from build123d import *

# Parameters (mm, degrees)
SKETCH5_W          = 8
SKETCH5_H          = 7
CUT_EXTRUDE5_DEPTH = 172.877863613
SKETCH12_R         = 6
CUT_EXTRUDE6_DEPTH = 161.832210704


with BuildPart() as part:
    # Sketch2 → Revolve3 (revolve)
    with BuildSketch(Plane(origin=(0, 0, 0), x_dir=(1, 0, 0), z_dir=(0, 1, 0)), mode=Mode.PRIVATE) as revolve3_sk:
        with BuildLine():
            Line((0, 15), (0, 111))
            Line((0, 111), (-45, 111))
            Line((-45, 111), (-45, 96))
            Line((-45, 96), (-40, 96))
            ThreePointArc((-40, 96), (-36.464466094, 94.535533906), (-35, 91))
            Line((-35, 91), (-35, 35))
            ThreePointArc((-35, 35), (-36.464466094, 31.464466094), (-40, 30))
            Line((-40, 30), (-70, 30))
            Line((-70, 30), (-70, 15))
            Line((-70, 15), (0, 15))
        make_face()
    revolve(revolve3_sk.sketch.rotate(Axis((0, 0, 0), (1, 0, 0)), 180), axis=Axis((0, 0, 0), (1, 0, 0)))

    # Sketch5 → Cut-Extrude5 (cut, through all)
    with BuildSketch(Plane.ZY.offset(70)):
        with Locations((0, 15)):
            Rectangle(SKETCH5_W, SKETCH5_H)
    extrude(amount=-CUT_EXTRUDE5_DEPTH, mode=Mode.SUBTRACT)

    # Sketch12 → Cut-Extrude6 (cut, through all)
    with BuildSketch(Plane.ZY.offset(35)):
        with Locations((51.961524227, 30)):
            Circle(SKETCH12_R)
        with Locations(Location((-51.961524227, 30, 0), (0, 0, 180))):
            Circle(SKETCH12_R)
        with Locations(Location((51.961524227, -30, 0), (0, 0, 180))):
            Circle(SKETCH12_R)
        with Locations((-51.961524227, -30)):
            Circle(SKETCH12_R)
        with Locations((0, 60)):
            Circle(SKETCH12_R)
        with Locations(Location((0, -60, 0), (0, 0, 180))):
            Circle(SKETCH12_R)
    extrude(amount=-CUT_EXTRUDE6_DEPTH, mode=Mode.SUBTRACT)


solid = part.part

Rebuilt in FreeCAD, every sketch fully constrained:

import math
import FreeCAD as App
import Part
import Sketcher

V = App.Vector
Q = App.Units.Quantity

doc = App.newDocument("Part")
body = doc.addObject("PartDesign::Body", "Body")

# Sketch on XZ plane
sketch1 = doc.addObject("Sketcher::SketchObject", "Sketch")
body.addObject(sketch1)
sketch1.AttachmentSupport = (doc.XZ_Plane, [""])
sketch1.MapMode = "FlatFace"
sketch1.addGeometry(Part.LineSegment(V(0, -15, 0), V(0, -111, 0)), False)
sketch1.addGeometry(Part.LineSegment(V(0, -111, 0), V(-45, -111, 0)), False)
sketch1.addGeometry(Part.LineSegment(V(-45, -111, 0), V(-45, -96, 0)), False)
sketch1.addGeometry(Part.LineSegment(V(-45, -96, 0), V(-40, -96, 0)), False)
sketch1.addGeometry(Part.ArcOfCircle(Part.Circle(V(-40, -91, 0), V(0, 0, 1), 5), math.radians(-90), math.radians(0)), False)
sketch1.addGeometry(Part.LineSegment(V(-35, -91, 0), V(-35, -35, 0)), False)
sketch1.addGeometry(Part.ArcOfCircle(Part.Circle(V(-40, -35, 0), V(0, 0, 1), 5), math.radians(0), math.radians(90)), False)
sketch1.addGeometry(Part.LineSegment(V(-40, -30, 0), V(-70, -30, 0)), False)
sketch1.addGeometry(Part.LineSegment(V(-70, -30, 0), V(-70, -15, 0)), False)
sketch1.addGeometry(Part.LineSegment(V(-70, -15, 0), V(0, -15, 0)), False)
sketch1.addConstraint(Sketcher.Constraint("Coincident", 0, 2, 1, 1))
sketch1.addConstraint(Sketcher.Constraint("Coincident", 1, 2, 2, 1))
sketch1.addConstraint(Sketcher.Constraint("Coincident", 2, 2, 3, 1))
sketch1.addConstraint(Sketcher.Constraint("Tangent", 3, 2, 4, 1))
sketch1.addConstraint(Sketcher.Constraint("Tangent", 4, 2, 5, 1))
sketch1.addConstraint(Sketcher.Constraint("Tangent", 5, 2, 6, 1))
sketch1.addConstraint(Sketcher.Constraint("Tangent", 6, 2, 7, 1))
sketch1.addConstraint(Sketcher.Constraint("Coincident", 7, 2, 8, 1))
sketch1.addConstraint(Sketcher.Constraint("Coincident", 8, 2, 9, 1))
sketch1.addConstraint(Sketcher.Constraint("Coincident", 9, 2, 0, 1))
sketch1.addConstraint(Sketcher.Constraint("Vertical", 0))
sketch1.addConstraint(Sketcher.Constraint("Horizontal", 1))
sketch1.addConstraint(Sketcher.Constraint("Vertical", 2))
sketch1.addConstraint(Sketcher.Constraint("Horizontal", 3))
sketch1.addConstraint(Sketcher.Constraint("Vertical", 5))
sketch1.addConstraint(Sketcher.Constraint("Horizontal", 7))
sketch1.addConstraint(Sketcher.Constraint("Vertical", 8))
sketch1.addConstraint(Sketcher.Constraint("Horizontal", 9))
sketch1.addConstraint(Sketcher.Constraint("Equal", 4, 6))
sketch1.addConstraint(Sketcher.Constraint("PointOnObject", 0, 2, -2))
sketch1.addConstraint(Sketcher.Constraint("Equal", 2, 8))
sketch1.addConstraint(Sketcher.Constraint("Radius", 4, Q("5 mm")))
sketch1.addConstraint(Sketcher.Constraint("DistanceX", 1, 2, 1, 1, Q("45 mm")))
sketch1.addConstraint(Sketcher.Constraint("DistanceX", 3, 1, 3, 2, Q("5 mm")))
sketch1.addConstraint(Sketcher.Constraint("DistanceX", 7, 2, 7, 1, Q("30 mm")))
sketch1.addConstraint(Sketcher.Constraint("DistanceY", 0, 2, 0, 1, Q("96 mm")))
sketch1.addConstraint(Sketcher.Constraint("DistanceY", 2, 1, 2, 2, Q("15 mm")))
sketch1.addConstraint(Sketcher.Constraint("DistanceY", 4, 3, -1, 1, Q("91 mm")))
revolution = doc.addObject("PartDesign::Revolution", "Revolution")
body.addObject(revolution)
revolution.Profile = sketch1
revolution.ReferenceAxis = (sketch1, ["H_Axis"])
revolution.Angle = 360

# Sketch on YZ plane
sketch2 = doc.addObject("Sketcher::SketchObject", "Sketch001")
body.addObject(sketch2)
sketch2.AttachmentSupport = (doc.YZ_Plane, [""])
sketch2.MapMode = "FlatFace"
sketch2.AttachmentOffset = App.Placement(V(0, 0, -70), App.Rotation())
sketch2.addGeometry(Part.LineSegment(V(18, -4, 0), V(12, -4, 0)), False)
sketch2.addGeometry(Part.LineSegment(V(12, -4, 0), V(12, 4, 0)), False)
sketch2.addGeometry(Part.LineSegment(V(12, 4, 0), V(18, 4, 0)), False)
sketch2.addGeometry(Part.LineSegment(V(18, 4, 0), V(18, -4, 0)), False)
sketch2.addConstraint(Sketcher.Constraint("Coincident", 0, 2, 1, 1))
sketch2.addConstraint(Sketcher.Constraint("Coincident", 1, 2, 2, 1))
sketch2.addConstraint(Sketcher.Constraint("Coincident", 2, 2, 3, 1))
sketch2.addConstraint(Sketcher.Constraint("Coincident", 3, 2, 0, 1))
sketch2.addConstraint(Sketcher.Constraint("Horizontal", 0))
sketch2.addConstraint(Sketcher.Constraint("Vertical", 1))
sketch2.addConstraint(Sketcher.Constraint("Horizontal", 2))
sketch2.addConstraint(Sketcher.Constraint("Vertical", 3))
sketch2.addConstraint(Sketcher.Constraint("DistanceX", 0, 2, 0, 1, Q("7 mm")))
sketch2.addConstraint(Sketcher.Constraint("DistanceY", 1, 1, 1, 2, Q("8 mm")))
sketch2.addConstraint(Sketcher.Constraint("DistanceY", 0, 2, -1, 1, Q("4 mm")))
sketch2.addConstraint(Sketcher.Constraint("DistanceX", -1, 1, 0, 2, Q("11.5 mm")))
pocket1 = doc.addObject("PartDesign::Pocket", "Pocket")
body.addObject(pocket1)
pocket1.Profile = sketch2
pocket1.Type = "ThroughAll"
pocket1.Reversed = True

# Sketch on YZ plane
sketch3 = doc.addObject("Sketcher::SketchObject", "Sketch002")
body.addObject(sketch3)
sketch3.AttachmentSupport = (doc.YZ_Plane, [""])
sketch3.MapMode = "FlatFace"
sketch3.AttachmentOffset = App.Placement(V(0, 0, -35), App.Rotation())
sketch3.addGeometry(Part.Circle(V(30, 52, 0), V(0, 0, 1), 6), False)
sketch3.addGeometry(Part.Circle(V(30, -52, 0), V(0, 0, 1), 6), False)
sketch3.addGeometry(Part.Circle(V(-30, 52, 0), V(0, 0, 1), 6), False)
sketch3.addGeometry(Part.Circle(V(-30, -52, 0), V(0, 0, 1), 6), False)
sketch3.addGeometry(Part.Circle(V(60, 0, 0), V(0, 0, 1), 6), False)
sketch3.addGeometry(Part.Circle(V(-60, 0, 0), V(0, 0, 1), 6), False)
sketch3.addConstraint(Sketcher.Constraint("Equal", 0, 1))
sketch3.addConstraint(Sketcher.Constraint("Equal", 1, 2))
sketch3.addConstraint(Sketcher.Constraint("Equal", 2, 3))
sketch3.addConstraint(Sketcher.Constraint("Equal", 3, 4))
sketch3.addConstraint(Sketcher.Constraint("Equal", 4, 5))
sketch3.addConstraint(Sketcher.Constraint("Symmetric", 1, 3, 2, 3, -1, 1))
sketch3.addConstraint(Sketcher.Constraint("Symmetric", 0, 3, 3, 3, -1, 1))
sketch3.addConstraint(Sketcher.Constraint("Symmetric", 4, 3, 5, 3, -1, 1))
sketch3.addConstraint(Sketcher.Constraint("Symmetric", 0, 3, 2, 3, -2))
sketch3.addConstraint(Sketcher.Constraint("PointOnObject", 4, 3, -1))
sketch3.addConstraint(Sketcher.Constraint("Diameter", 0, Q("12 mm")))
sketch3.addConstraint(Sketcher.Constraint("DistanceX", -1, 1, 0, 3, Q("30 mm")))
sketch3.addConstraint(Sketcher.Constraint("DistanceX", -1, 1, 4, 3, Q("60 mm")))
sketch3.addConstraint(Sketcher.Constraint("DistanceY", 1, 3, 0, 3, Q("103.923048 mm")))
pocket2 = doc.addObject("PartDesign::Pocket", "Pocket001")
body.addObject(pocket2)
pocket2.Profile = sketch3
pocket2.Type = "ThroughAll"
pocket2.Reversed = True

doc.recompute()
